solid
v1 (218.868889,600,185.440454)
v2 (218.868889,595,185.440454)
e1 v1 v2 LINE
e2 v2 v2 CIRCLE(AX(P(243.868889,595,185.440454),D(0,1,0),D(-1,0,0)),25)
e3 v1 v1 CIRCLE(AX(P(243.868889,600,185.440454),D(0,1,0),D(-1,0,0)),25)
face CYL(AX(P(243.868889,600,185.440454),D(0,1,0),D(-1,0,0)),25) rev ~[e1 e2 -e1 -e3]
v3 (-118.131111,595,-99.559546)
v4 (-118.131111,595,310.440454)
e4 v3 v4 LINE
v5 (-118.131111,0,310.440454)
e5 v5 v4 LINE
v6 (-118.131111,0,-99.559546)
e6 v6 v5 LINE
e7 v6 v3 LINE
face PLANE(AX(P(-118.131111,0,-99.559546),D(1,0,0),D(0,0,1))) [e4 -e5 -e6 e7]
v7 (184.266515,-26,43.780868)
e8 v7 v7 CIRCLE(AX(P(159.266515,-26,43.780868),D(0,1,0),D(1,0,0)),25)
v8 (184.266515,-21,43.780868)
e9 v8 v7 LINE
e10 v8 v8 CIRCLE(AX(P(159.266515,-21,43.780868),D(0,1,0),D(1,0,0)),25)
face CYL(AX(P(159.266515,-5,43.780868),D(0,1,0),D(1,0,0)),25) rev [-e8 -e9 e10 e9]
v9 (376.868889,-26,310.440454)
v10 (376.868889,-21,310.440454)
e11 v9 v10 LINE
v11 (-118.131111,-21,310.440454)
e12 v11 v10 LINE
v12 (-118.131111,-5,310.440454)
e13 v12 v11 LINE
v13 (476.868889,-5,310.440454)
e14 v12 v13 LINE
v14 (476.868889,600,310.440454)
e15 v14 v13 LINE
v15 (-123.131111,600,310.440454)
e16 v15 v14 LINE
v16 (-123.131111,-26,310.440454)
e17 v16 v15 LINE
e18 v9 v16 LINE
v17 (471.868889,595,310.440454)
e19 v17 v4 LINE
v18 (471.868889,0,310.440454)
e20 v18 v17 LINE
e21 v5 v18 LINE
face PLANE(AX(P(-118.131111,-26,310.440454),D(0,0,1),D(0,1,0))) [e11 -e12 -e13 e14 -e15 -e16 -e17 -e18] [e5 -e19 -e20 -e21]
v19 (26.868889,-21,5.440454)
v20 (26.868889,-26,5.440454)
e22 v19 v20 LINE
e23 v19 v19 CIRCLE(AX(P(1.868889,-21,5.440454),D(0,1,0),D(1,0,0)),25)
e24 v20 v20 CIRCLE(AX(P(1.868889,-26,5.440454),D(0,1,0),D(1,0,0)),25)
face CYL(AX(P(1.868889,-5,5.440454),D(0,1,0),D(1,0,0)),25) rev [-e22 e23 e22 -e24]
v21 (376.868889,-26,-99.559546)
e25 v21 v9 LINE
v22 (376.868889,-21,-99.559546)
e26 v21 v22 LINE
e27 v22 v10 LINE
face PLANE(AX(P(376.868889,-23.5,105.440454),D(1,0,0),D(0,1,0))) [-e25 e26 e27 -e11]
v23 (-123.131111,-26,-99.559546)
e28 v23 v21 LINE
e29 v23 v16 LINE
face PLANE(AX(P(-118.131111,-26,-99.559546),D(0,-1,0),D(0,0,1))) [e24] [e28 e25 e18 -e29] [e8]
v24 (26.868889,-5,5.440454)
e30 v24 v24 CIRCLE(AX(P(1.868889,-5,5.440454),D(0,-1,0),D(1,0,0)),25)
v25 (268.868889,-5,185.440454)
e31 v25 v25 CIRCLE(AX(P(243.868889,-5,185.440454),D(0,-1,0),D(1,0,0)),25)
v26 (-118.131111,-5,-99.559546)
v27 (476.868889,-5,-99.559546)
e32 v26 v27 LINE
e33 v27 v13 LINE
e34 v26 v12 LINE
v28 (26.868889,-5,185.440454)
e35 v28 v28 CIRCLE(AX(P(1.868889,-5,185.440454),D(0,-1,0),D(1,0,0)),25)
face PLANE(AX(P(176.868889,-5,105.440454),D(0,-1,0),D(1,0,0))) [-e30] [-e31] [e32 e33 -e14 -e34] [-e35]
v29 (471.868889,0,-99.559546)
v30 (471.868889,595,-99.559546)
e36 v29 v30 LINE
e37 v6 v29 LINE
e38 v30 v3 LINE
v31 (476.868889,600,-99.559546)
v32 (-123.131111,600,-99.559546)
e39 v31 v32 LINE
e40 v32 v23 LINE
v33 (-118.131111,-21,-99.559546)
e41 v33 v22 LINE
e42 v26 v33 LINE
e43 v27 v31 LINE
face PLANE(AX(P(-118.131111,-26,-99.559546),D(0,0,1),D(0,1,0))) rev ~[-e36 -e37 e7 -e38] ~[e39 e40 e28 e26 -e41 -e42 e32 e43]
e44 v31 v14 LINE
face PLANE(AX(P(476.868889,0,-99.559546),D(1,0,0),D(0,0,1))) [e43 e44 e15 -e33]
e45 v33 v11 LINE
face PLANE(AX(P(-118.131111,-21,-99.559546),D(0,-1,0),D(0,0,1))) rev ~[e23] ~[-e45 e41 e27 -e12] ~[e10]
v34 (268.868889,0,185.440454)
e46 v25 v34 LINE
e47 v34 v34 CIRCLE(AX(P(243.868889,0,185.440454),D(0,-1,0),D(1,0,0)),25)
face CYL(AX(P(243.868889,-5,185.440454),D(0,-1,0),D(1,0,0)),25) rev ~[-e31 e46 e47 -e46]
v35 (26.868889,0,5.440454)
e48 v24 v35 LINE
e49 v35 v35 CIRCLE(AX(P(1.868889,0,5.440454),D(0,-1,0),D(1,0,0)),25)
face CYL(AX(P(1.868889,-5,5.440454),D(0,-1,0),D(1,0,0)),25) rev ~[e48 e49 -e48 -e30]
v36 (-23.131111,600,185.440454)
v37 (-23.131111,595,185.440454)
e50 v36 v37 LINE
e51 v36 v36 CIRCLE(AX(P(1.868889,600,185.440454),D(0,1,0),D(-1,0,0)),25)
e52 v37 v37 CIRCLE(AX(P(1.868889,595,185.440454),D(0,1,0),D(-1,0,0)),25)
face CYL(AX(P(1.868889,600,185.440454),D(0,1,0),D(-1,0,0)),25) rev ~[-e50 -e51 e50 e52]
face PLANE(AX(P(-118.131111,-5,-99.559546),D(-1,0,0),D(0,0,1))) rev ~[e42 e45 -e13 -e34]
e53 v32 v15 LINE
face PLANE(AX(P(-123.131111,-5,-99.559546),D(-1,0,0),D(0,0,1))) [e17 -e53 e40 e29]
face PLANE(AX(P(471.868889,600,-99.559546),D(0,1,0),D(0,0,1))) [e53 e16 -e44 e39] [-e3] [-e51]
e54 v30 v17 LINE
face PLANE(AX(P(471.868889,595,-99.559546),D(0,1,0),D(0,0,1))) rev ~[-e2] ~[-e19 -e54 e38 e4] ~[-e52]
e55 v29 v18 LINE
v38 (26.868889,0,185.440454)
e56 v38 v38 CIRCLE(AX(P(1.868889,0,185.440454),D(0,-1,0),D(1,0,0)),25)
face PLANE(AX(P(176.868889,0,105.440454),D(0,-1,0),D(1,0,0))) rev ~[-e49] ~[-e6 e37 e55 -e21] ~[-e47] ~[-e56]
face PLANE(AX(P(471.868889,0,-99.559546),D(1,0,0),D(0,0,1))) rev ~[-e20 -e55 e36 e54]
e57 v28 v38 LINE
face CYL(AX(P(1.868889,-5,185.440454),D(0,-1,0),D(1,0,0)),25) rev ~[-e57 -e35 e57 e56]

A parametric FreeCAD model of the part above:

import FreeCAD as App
import Part
import Sketcher
Q = App.Units.Quantity

doc = App.newDocument("Part")
body = doc.addObject("PartDesign::Body", "Body")

# Sketch on XZ plane
sketch1 = body.newObject("Sketcher::SketchObject", "Sketch")
sketch1.AttachmentSupport = (doc.getObject("XZ_Plane"), [""])
sketch1.MapMode = "FlatFace"
sketch1.addGeometry([
    Part.LineSegment(App.Vector(-123.131111, 310.440454, 0), App.Vector(-123.131111, -99.559546, 0)),
    Part.LineSegment(App.Vector(-123.131111, -99.559546, 0), App.Vector(476.868889, -99.559546, 0)),
    Part.LineSegment(App.Vector(476.868889, -99.559546, 0), App.Vector(476.868889, 310.440454, 0)),
    Part.LineSegment(App.Vector(476.868889, 310.440454, 0), App.Vector(-123.131111, 310.440454, 0)),
], False)
sketch1.addConstraint([
    Sketcher.Constraint("Coincident", 0, 2, 1, 1),
    Sketcher.Constraint("Coincident", 1, 2, 2, 1),
    Sketcher.Constraint("Coincident", 2, 2, 3, 1),
    Sketcher.Constraint("Coincident", 3, 2, 0, 1),
    Sketcher.Constraint("Vertical", 0),
    Sketcher.Constraint("Horizontal", 1),
    Sketcher.Constraint("Vertical", 2),
    Sketcher.Constraint("Horizontal", 3),
    Sketcher.Constraint("DistanceX", 1, 1, 1, 2, Q("600 mm")),
    Sketcher.Constraint("DistanceY", 0, 2, 0, 1, Q("410 mm")),
    Sketcher.Constraint("DistanceX", 0, 2, -1, 1, Q("123.131111 mm")),
    Sketcher.Constraint("DistanceY", 0, 2, -1, 1, Q("99.559546 mm")),
])
pad1 = body.newObject("PartDesign::Pad", "Pad")
pad1.Profile = sketch1
pad1.Length = 5

# Sketch on XZ plane
sketch2 = body.newObject("Sketcher::SketchObject", "Sketch001")
sketch2.AttachmentSupport = (doc.getObject("XZ_Plane"), [""])
sketch2.MapMode = "FlatFace"
sketch2.addGeometry([
    Part.LineSegment(App.Vector(476.868889, 310.440454, 0), App.Vector(476.868889, -99.559546, 0)),  # 0
    Part.LineSegment(App.Vector(476.868889, -99.559546, 0), App.Vector(471.868889, -99.559546, 0)),  # 1
    Part.LineSegment(App.Vector(471.868889, -99.559546, 0), App.Vector(471.868889, 310.440454, 0)),  # 2
    Part.LineSegment(App.Vector(471.868889, 310.440454, 0), App.Vector(476.868889, 310.440454, 0)),  # 3
    Part.LineSegment(App.Vector(-118.131111, 310.440454, 0), App.Vector(-118.131111, -99.559546, 0)),  # 4
    Part.LineSegment(App.Vector(-118.131111, -99.559546, 0), App.Vector(-123.131111, -99.559546, 0)),  # 5
    Part.LineSegment(App.Vector(-123.131111, -99.559546, 0), App.Vector(-123.131111, 310.440454, 0)),  # 6
    Part.LineSegment(App.Vector(-123.131111, 310.440454, 0), App.Vector(-118.131111, 310.440454, 0)),  # 7
], False)
sketch2.addConstraint([
    Sketcher.Constraint("Coincident", 0, 2, 1, 1),
    Sketcher.Constraint("Coincident", 1, 2, 2, 1),
    Sketcher.Constraint("Coincident", 2, 2, 3, 1),
    Sketcher.Constraint("Coincident", 3, 2, 0, 1),
    Sketcher.Constraint("Coincident", 4, 2, 5, 1),
    Sketcher.Constraint("Coincident", 5, 2, 6, 1),
    Sketcher.Constraint("Coincident", 6, 2, 7, 1),
    Sketcher.Constraint("Coincident", 7, 2, 4, 1),
    Sketcher.Constraint("Vertical", 0),
    Sketcher.Constraint("Horizontal", 1),
    Sketcher.Constraint("Vertical", 2),
    Sketcher.Constraint("Horizontal", 3),
    Sketcher.Constraint("Vertical", 4),
    Sketcher.Constraint("Horizontal", 5),
    Sketcher.Constraint("Vertical", 6),
    Sketcher.Constraint("Horizontal", 7),
    Sketcher.Constraint("Horizontal", 1, 2, 4, 2),
    Sketcher.Constraint("Horizontal", 3, 2, 6, 2),
    Sketcher.Constraint("Equal", 3, 5),
    Sketcher.Constraint("DistanceX", 1, 2, 1, 1, Q("5 mm")),
    Sketcher.Constraint("DistanceY", 0, 2, 0, 1, Q("410 mm")),
    Sketcher.Constraint("DistanceX", 4, 2, 1, 2, Q("590 mm")),
    Sketcher.Constraint("DistanceX", -1, 1, 0, 2, Q("476.868889 mm")),
    Sketcher.Constraint("DistanceY", 0, 2, -1, 1, Q("99.559546 mm")),
])
pad2 = body.newObject("PartDesign::Pad", "Pad001")
pad2.Profile = sketch2
pad2.Length = 600
pad2.Reversed = True

# Sketch on YZ plane
sketch3 = body.newObject("Sketcher::SketchObject", "Sketch002")
sketch3.AttachmentSupport = (doc.getObject("YZ_Plane"), [""])
sketch3.MapMode = "FlatFace"
sketch3.AttachmentOffset = App.Placement(App.Vector(0, 0, 471.868889), App.Rotation())
sketch3.addGeometry([
    Part.LineSegment(App.Vector(600, 310.440454, 0), App.Vector(600, -99.559546, 0)),
    Part.LineSegment(App.Vector(600, -99.559546, 0), App.Vector(595, -99.559546, 0)),
    Part.LineSegment(App.Vector(595, -99.559546, 0), App.Vector(595, 310.440454, 0)),
    Part.LineSegment(App.Vector(595, 310.440454, 0), App.Vector(600, 310.440454, 0)),
], False)
sketch3.addConstraint([
    Sketcher.Constraint("Coincident", 0, 2, 1, 1),
    Sketcher.Constraint("Coincident", 1, 2, 2, 1),
    Sketcher.Constraint("Coincident", 2, 2, 3, 1),
    Sketcher.Constraint("Coincident", 3, 2, 0, 1),
    Sketcher.Constraint("Vertical", 0),
    Sketcher.Constraint("Horizontal", 1),
    Sketcher.Constraint("Vertical", 2),
    Sketcher.Constraint("Horizontal", 3),
    Sketcher.Constraint("DistanceX", 1, 2, 1, 1, Q("5 mm")),
    Sketcher.Constraint("DistanceY", 0, 2, 0, 1, Q("410 mm")),
    Sketcher.Constraint("DistanceX", -1, 1, 0, 2, Q("600 mm")),
    Sketcher.Constraint("DistanceY", 0, 2, -1, 1, Q("99.559546 mm")),
])
pad3 = body.newObject("PartDesign::Pad", "Pad002")
pad3.Profile = sketch3
pad3.Length = 591
pad3.Reversed = True

# Sketch on XZ plane
sketch4 = body.newObject("Sketcher::SketchObject", "Sketch003")
sketch4.AttachmentSupport = (doc.getObject("XZ_Plane"), [""])
sketch4.MapMode = "FlatFace"
sketch4.AttachmentOffset = App.Placement(App.Vector(0, 0, -600), App.Rotation())
sketch4.addGeometry([
    Part.Circle(App.Vector(1.868889, 185.440454, 0), App.Vector(0, 0, 1), 25),
    Part.Circle(App.Vector(243.868889, 185.440454, 0), App.Vector(0, 0, 1), 25),
], False)
sketch4.addConstraint([
    Sketcher.Constraint("Equal", 0, 1),
    Sketcher.Constraint("Horizontal", 0, 3, 1, 3),
    Sketcher.Constraint("Diameter", 0, Q("50 mm")),
    Sketcher.Constraint("DistanceX", 0, 3, 1, 3, Q("242 mm")),
    Sketcher.Constraint("DistanceX", -1, 1, 0, 3, Q("1.868889 mm")),
    Sketcher.Constraint("DistanceY", -1, 1, 0, 3, Q("185.440454 mm")),
])
pocket1 = body.newObject("PartDesign::Pocket", "Pocket")
pocket1.Profile = sketch4
pocket1.Length = 25.4
pocket1.Reversed = True

# Sketch on XZ plane
sketch5 = body.newObject("Sketcher::SketchObject", "Sketch004")
sketch5.AttachmentSupport = (doc.getObject("XZ_Plane"), [""])
sketch5.MapMode = "FlatFace"
sketch5.AttachmentOffset = App.Placement(App.Vector(0, 0, 5), App.Rotation())
sketch5.addGeometry(Part.Circle(App.Vector(1.868889, 185.440454, 0), App.Vector(0, 0, 1), 25), False)
sketch5.addConstraint([
    Sketcher.Constraint("Diameter", 0, Q("50 mm")),
    Sketcher.Constraint("DistanceX", -1, 1, 0, 3, Q("1.868889 mm")),
    Sketcher.Constraint("DistanceY", -1, 1, 0, 3, Q("185.440454 mm")),
])
pocket2 = body.newObject("PartDesign::Pocket", "Pocket001")
pocket2.Profile = sketch5
pocket2.Length = 25.4

# Sketch on XZ plane
sketch6 = body.newObject("Sketcher::SketchObject", "Sketch005")
sketch6.AttachmentSupport = (doc.getObject("XZ_Plane"), [""])
sketch6.MapMode = "FlatFace"
sketch6.AttachmentOffset = App.Placement(App.Vector(0, 0, 5), App.Rotation())
sketch6.addGeometry(Part.Circle(App.Vector(243.868889, 185.440454, 0), App.Vector(0, 0, 1), 25), False)
sketch6.addConstraint([
    Sketcher.Constraint("Diameter", 0, Q("50 mm")),
    Sketcher.Constraint("DistanceX", -1, 1, 0, 3, Q("243.868889 mm")),
    Sketcher.Constraint("DistanceY", -1, 1, 0, 3, Q("185.440454 mm")),
])
pocket3 = body.newObject("PartDesign::Pocket", "Pocket002")
pocket3.Profile = sketch6
pocket3.Length = 25.4

# Sketch on XZ plane
sketch7 = body.newObject("Sketcher::SketchObject", "Sketch006")
sketch7.AttachmentSupport = (doc.getObject("XZ_Plane"), [""])
sketch7.MapMode = "FlatFace"
sketch7.AttachmentOffset = App.Placement(App.Vector(0, 0, 5), App.Rotation())
sketch7.addGeometry(Part.Circle(App.Vector(1.868889, 5.440454, 0), App.Vector(0, 0, 1), 25), False)
sketch7.addConstraint([
    Sketcher.Constraint("Diameter", 0, Q("50 mm")),
    Sketcher.Constraint("DistanceX", -1, 1, 0, 3, Q("1.868889 mm")),
    Sketcher.Constraint("DistanceY", -1, 1, 0, 3, Q("5.440454 mm")),
])
pocket4 = body.newObject("PartDesign::Pocket", "Pocket003")
pocket4.Profile = sketch7
pocket4.Length = 25.4

# Sketch on XZ plane
sketch8 = body.newObject("Sketcher::SketchObject", "Sketch007")
sketch8.AttachmentSupport = (doc.getObject("XZ_Plane"), [""])
sketch8.MapMode = "FlatFace"
sketch8.AttachmentOffset = App.Placement(App.Vector(0, 0, 5), App.Rotation())
sketch8.addGeometry([
    Part.LineSegment(App.Vector(-123.131111, 310.440454, 0), App.Vector(-123.131111, -99.559546, 0)),
    Part.LineSegment(App.Vector(-123.131111, -99.559546, 0), App.Vector(-118.131111, -99.559546, 0)),
    Part.LineSegment(App.Vector(-118.131111, -99.559546, 0), App.Vector(-118.131111, 310.440454, 0)),
    Part.LineSegment(App.Vector(-118.131111, 310.440454, 0), App.Vector(-123.131111, 310.440454, 0)),
], False)
sketch8.addConstraint([
    Sketcher.Constraint("Coincident", 0, 2, 1, 1),
    Sketcher.Constraint("Coincident", 1, 2, 2, 1),
    Sketcher.Constraint("Coincident", 2, 2, 3, 1),
    Sketcher.Constraint("Coincident", 3, 2, 0, 1),
    Sketcher.Constraint("Vertical", 0),
    Sketcher.Constraint("Horizontal", 1),
    Sketcher.Constraint("Vertical", 2),
    Sketcher.Constraint("Horizontal", 3),
    Sketcher.Constraint("DistanceX", 1, 1, 1, 2, Q("5 mm")),
    Sketcher.Constraint("DistanceY", 0, 2, 0, 1, Q("410 mm")),
    Sketcher.Constraint("DistanceX", 0, 2, -1, 1, Q("123.131111 mm")),
    Sketcher.Constraint("DistanceY", 0, 2, -1, 1, Q("99.559546 mm")),
])
pad4 = body.newObject("PartDesign::Pad", "Pad003")
pad4.Profile = sketch8
pad4.Length = 21

# Sketch on YZ plane
sketch9 = body.newObject("Sketcher::SketchObject", "Sketch008")
sketch9.AttachmentSupport = (doc.getObject("YZ_Plane"), [""])
sketch9.MapMode = "FlatFace"
sketch9.AttachmentOffset = App.Placement(App.Vector(0, 0, -118.131111), App.Rotation())
sketch9.addGeometry([
    Part.LineSegment(App.Vector(-26, 310.440454, 0), App.Vector(-26, -99.559546, 0)),
    Part.LineSegment(App.Vector(-26, -99.559546, 0), App.Vector(-21, -99.559546, 0)),
    Part.LineSegment(App.Vector(-21, -99.559546, 0), App.Vector(-21, 310.440454, 0)),
    Part.LineSegment(App.Vector(-21, 310.440454, 0), App.Vector(-26, 310.440454, 0)),
], False)
sketch9.addConstraint([
    Sketcher.Constraint("Coincident", 0, 2, 1, 1),
    Sketcher.Constraint("Coincident", 1, 2, 2, 1),
    Sketcher.Constraint("Coincident", 2, 2, 3, 1),
    Sketcher.Constraint("Coincident", 3, 2, 0, 1),
    Sketcher.Constraint("Vertical", 0),
    Sketcher.Constraint("Horizontal", 1),
    Sketcher.Constraint("Vertical", 2),
    Sketcher.Constraint("Horizontal", 3),
    Sketcher.Constraint("DistanceX", 1, 1, 1, 2, Q("5 mm")),
    Sketcher.Constraint("DistanceY", 0, 2, 0, 1, Q("410 mm")),
    Sketcher.Constraint("DistanceX", 0, 2, -1, 1, Q("26 mm")),
    Sketcher.Constraint("DistanceY", 0, 2, -1, 1, Q("99.559546 mm")),
])
pad5 = body.newObject("PartDesign::Pad", "Pad004")
pad5.Profile = sketch9
pad5.Length = 495

# Sketch on XZ plane
sketch10 = body.newObject("Sketcher::SketchObject", "Sketch009")
sketch10.AttachmentSupport = (doc.getObject("XZ_Plane"), [""])
sketch10.MapMode = "FlatFace"
sketch10.AttachmentOffset = App.Placement(App.Vector(0, 0, 5), App.Rotation())
sketch10.addGeometry(Part.Circle(App.Vector(1.868889, 5.440454, 0), App.Vector(0, 0, 1), 25), False)
sketch10.addConstraint([
    Sketcher.Constraint("Diameter", 0, Q("50 mm")),
    Sketcher.Constraint("DistanceX", -1, 1, 0, 3, Q("1.868889 mm")),
    Sketcher.Constraint("DistanceY", -1, 1, 0, 3, Q("5.440454 mm")),
])
pocket5 = body.newObject("PartDesign::Pocket", "Pocket004")
pocket5.Profile = sketch10
pocket5.Length = 76.2
pocket5.Reversed = True

# Sketch on XZ plane
sketch11 = body.newObject("Sketcher::SketchObject", "Sketch010")
sketch11.AttachmentSupport = (doc.getObject("XZ_Plane"), [""])
sketch11.MapMode = "FlatFace"
sketch11.AttachmentOffset = App.Placement(App.Vector(0, 0, 5), App.Rotation())
sketch11.addGeometry(Part.Circle(App.Vector(159.266515, 43.780868, 0), App.Vector(0, 0, 1), 25), False)
sketch11.addConstraint([
    Sketcher.Constraint("Diameter", 0, Q("50 mm")),
    Sketcher.Constraint("DistanceX", -1, 1, 0, 3, Q("159.266515 mm")),
    Sketcher.Constraint("DistanceY", -1, 1, 0, 3, Q("43.780868 mm")),
])
pocket6 = body.newObject("PartDesign::Pocket", "Pocket005")
pocket6.Profile = sketch11
pocket6.Length = 25.4
pocket6.Reversed = True

doc.recompute()
